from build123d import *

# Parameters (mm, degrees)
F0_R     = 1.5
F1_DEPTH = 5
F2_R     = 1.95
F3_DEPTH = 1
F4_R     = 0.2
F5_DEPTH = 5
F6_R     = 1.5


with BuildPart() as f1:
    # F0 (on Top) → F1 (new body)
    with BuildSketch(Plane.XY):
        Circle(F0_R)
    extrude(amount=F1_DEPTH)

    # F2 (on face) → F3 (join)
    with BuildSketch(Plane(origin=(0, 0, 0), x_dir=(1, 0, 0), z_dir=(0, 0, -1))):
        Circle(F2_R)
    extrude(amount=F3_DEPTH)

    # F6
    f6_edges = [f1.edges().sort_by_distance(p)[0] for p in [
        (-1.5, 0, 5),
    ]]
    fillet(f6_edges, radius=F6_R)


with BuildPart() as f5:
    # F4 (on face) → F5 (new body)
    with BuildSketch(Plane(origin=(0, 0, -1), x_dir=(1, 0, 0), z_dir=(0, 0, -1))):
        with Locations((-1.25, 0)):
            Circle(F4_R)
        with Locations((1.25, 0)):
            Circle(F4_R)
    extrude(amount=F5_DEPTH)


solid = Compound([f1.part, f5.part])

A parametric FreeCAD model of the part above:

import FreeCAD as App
import Part
import Sketcher
from FreeCAD import Vector
Q = App.Units.Quantity


def edges_at(feature, points):
    """Names of the edges that pass closest to the given points."""
    edges = feature.Shape.Edges
    near = lambda p: min(range(len(edges)), key=lambda i: edges[i].distToShape(Part.Vertex(*p))[0])
    return sorted({f"Edge{near(p) + 1}" for p in points})

doc = App.newDocument("Part")
body = doc.addObject("PartDesign::Body", "Body")

sketch1 = body.newObject("Sketcher::SketchObject", "Sketch")
sketch1.AttachmentSupport = (doc.getObject("XY_Plane"), [""])
sketch1.MapMode = "FlatFace"
sketch1.addGeometry(Part.Circle(Vector(0, 0, 0), Vector(0, 0, 1), 1.5), False)
sketch1.addConstraint(Sketcher.Constraint("Coincident", 0, 3, -1, 1))
sketch1.addConstraint(Sketcher.Constraint("Diameter", 0, Q("3 mm")))
pad1 = body.newObject("PartDesign::Pad", "Pad")
pad1.Profile = sketch1
pad1.Length = 5

sketch2 = body.newObject("Sketcher::SketchObject", "Sketch001")
sketch2.AttachmentSupport = (doc.getObject("XY_Plane"), [""])
sketch2.MapMode = "FlatFace"
sketch2.addGeometry(Part.Circle(Vector(0, 0, 0), Vector(0, 0, 1), 1.9), False)
sketch2.addConstraint(Sketcher.Constraint("Coincident", 0, 3, -1, 1))
sketch2.addConstraint(Sketcher.Constraint("Diameter", 0, Q("3.9 mm")))
pad2 = body.newObject("PartDesign::Pad", "Pad001")
pad2.Profile = sketch2
pad2.Length = 1
pad2.Reversed = True
doc.recompute()

fillet = body.newObject("PartDesign::Fillet", "Fillet")
fillet.Base = (pad2, edges_at(pad2, [(-1.5, 0, 5)]))
fillet.Radius = 1.5
body2 = doc.addObject("PartDesign::Body", "Body001")
body2.AllowCompound = True

sketch3 = body2.newObject("Sketcher::SketchObject", "Sketch002")
sketch3.AttachmentSupport = (doc.getObject("XY_Plane001"), [""])
sketch3.MapMode = "FlatFace"
sketch3.AttachmentOffset = App.Placement(Vector(0, 0, -1), App.Rotation())
sketch3.addGeometry(Part.Circle(Vector(-1.25, 0, 0), Vector(0, 0, 1), 0.2), False)
sketch3.addGeometry(Part.Circle(Vector(1.25, 0, 0), Vector(0, 0, 1), 0.2), False)
sketch3.addConstraint(Sketcher.Constraint("Equal", 0, 1))
sketch3.addConstraint(Sketcher.Constraint("Symmetric", 0, 3, 1, 3, -1, 1))
sketch3.addConstraint(Sketcher.Constraint("PointOnObject", 0, 3, -1))
sketch3.addConstraint(Sketcher.Constraint("Diameter", 0, Q("0.4 mm")))
sketch3.addConstraint(Sketcher.Constraint("DistanceX", 0, 3, 1, 3, Q("2.5 mm")))
pad3 = body2.newObject("PartDesign::Pad", "Pad002")
pad3.Profile = sketch3
pad3.Length = 5
pad3.Reversed = True

doc.recompute()
